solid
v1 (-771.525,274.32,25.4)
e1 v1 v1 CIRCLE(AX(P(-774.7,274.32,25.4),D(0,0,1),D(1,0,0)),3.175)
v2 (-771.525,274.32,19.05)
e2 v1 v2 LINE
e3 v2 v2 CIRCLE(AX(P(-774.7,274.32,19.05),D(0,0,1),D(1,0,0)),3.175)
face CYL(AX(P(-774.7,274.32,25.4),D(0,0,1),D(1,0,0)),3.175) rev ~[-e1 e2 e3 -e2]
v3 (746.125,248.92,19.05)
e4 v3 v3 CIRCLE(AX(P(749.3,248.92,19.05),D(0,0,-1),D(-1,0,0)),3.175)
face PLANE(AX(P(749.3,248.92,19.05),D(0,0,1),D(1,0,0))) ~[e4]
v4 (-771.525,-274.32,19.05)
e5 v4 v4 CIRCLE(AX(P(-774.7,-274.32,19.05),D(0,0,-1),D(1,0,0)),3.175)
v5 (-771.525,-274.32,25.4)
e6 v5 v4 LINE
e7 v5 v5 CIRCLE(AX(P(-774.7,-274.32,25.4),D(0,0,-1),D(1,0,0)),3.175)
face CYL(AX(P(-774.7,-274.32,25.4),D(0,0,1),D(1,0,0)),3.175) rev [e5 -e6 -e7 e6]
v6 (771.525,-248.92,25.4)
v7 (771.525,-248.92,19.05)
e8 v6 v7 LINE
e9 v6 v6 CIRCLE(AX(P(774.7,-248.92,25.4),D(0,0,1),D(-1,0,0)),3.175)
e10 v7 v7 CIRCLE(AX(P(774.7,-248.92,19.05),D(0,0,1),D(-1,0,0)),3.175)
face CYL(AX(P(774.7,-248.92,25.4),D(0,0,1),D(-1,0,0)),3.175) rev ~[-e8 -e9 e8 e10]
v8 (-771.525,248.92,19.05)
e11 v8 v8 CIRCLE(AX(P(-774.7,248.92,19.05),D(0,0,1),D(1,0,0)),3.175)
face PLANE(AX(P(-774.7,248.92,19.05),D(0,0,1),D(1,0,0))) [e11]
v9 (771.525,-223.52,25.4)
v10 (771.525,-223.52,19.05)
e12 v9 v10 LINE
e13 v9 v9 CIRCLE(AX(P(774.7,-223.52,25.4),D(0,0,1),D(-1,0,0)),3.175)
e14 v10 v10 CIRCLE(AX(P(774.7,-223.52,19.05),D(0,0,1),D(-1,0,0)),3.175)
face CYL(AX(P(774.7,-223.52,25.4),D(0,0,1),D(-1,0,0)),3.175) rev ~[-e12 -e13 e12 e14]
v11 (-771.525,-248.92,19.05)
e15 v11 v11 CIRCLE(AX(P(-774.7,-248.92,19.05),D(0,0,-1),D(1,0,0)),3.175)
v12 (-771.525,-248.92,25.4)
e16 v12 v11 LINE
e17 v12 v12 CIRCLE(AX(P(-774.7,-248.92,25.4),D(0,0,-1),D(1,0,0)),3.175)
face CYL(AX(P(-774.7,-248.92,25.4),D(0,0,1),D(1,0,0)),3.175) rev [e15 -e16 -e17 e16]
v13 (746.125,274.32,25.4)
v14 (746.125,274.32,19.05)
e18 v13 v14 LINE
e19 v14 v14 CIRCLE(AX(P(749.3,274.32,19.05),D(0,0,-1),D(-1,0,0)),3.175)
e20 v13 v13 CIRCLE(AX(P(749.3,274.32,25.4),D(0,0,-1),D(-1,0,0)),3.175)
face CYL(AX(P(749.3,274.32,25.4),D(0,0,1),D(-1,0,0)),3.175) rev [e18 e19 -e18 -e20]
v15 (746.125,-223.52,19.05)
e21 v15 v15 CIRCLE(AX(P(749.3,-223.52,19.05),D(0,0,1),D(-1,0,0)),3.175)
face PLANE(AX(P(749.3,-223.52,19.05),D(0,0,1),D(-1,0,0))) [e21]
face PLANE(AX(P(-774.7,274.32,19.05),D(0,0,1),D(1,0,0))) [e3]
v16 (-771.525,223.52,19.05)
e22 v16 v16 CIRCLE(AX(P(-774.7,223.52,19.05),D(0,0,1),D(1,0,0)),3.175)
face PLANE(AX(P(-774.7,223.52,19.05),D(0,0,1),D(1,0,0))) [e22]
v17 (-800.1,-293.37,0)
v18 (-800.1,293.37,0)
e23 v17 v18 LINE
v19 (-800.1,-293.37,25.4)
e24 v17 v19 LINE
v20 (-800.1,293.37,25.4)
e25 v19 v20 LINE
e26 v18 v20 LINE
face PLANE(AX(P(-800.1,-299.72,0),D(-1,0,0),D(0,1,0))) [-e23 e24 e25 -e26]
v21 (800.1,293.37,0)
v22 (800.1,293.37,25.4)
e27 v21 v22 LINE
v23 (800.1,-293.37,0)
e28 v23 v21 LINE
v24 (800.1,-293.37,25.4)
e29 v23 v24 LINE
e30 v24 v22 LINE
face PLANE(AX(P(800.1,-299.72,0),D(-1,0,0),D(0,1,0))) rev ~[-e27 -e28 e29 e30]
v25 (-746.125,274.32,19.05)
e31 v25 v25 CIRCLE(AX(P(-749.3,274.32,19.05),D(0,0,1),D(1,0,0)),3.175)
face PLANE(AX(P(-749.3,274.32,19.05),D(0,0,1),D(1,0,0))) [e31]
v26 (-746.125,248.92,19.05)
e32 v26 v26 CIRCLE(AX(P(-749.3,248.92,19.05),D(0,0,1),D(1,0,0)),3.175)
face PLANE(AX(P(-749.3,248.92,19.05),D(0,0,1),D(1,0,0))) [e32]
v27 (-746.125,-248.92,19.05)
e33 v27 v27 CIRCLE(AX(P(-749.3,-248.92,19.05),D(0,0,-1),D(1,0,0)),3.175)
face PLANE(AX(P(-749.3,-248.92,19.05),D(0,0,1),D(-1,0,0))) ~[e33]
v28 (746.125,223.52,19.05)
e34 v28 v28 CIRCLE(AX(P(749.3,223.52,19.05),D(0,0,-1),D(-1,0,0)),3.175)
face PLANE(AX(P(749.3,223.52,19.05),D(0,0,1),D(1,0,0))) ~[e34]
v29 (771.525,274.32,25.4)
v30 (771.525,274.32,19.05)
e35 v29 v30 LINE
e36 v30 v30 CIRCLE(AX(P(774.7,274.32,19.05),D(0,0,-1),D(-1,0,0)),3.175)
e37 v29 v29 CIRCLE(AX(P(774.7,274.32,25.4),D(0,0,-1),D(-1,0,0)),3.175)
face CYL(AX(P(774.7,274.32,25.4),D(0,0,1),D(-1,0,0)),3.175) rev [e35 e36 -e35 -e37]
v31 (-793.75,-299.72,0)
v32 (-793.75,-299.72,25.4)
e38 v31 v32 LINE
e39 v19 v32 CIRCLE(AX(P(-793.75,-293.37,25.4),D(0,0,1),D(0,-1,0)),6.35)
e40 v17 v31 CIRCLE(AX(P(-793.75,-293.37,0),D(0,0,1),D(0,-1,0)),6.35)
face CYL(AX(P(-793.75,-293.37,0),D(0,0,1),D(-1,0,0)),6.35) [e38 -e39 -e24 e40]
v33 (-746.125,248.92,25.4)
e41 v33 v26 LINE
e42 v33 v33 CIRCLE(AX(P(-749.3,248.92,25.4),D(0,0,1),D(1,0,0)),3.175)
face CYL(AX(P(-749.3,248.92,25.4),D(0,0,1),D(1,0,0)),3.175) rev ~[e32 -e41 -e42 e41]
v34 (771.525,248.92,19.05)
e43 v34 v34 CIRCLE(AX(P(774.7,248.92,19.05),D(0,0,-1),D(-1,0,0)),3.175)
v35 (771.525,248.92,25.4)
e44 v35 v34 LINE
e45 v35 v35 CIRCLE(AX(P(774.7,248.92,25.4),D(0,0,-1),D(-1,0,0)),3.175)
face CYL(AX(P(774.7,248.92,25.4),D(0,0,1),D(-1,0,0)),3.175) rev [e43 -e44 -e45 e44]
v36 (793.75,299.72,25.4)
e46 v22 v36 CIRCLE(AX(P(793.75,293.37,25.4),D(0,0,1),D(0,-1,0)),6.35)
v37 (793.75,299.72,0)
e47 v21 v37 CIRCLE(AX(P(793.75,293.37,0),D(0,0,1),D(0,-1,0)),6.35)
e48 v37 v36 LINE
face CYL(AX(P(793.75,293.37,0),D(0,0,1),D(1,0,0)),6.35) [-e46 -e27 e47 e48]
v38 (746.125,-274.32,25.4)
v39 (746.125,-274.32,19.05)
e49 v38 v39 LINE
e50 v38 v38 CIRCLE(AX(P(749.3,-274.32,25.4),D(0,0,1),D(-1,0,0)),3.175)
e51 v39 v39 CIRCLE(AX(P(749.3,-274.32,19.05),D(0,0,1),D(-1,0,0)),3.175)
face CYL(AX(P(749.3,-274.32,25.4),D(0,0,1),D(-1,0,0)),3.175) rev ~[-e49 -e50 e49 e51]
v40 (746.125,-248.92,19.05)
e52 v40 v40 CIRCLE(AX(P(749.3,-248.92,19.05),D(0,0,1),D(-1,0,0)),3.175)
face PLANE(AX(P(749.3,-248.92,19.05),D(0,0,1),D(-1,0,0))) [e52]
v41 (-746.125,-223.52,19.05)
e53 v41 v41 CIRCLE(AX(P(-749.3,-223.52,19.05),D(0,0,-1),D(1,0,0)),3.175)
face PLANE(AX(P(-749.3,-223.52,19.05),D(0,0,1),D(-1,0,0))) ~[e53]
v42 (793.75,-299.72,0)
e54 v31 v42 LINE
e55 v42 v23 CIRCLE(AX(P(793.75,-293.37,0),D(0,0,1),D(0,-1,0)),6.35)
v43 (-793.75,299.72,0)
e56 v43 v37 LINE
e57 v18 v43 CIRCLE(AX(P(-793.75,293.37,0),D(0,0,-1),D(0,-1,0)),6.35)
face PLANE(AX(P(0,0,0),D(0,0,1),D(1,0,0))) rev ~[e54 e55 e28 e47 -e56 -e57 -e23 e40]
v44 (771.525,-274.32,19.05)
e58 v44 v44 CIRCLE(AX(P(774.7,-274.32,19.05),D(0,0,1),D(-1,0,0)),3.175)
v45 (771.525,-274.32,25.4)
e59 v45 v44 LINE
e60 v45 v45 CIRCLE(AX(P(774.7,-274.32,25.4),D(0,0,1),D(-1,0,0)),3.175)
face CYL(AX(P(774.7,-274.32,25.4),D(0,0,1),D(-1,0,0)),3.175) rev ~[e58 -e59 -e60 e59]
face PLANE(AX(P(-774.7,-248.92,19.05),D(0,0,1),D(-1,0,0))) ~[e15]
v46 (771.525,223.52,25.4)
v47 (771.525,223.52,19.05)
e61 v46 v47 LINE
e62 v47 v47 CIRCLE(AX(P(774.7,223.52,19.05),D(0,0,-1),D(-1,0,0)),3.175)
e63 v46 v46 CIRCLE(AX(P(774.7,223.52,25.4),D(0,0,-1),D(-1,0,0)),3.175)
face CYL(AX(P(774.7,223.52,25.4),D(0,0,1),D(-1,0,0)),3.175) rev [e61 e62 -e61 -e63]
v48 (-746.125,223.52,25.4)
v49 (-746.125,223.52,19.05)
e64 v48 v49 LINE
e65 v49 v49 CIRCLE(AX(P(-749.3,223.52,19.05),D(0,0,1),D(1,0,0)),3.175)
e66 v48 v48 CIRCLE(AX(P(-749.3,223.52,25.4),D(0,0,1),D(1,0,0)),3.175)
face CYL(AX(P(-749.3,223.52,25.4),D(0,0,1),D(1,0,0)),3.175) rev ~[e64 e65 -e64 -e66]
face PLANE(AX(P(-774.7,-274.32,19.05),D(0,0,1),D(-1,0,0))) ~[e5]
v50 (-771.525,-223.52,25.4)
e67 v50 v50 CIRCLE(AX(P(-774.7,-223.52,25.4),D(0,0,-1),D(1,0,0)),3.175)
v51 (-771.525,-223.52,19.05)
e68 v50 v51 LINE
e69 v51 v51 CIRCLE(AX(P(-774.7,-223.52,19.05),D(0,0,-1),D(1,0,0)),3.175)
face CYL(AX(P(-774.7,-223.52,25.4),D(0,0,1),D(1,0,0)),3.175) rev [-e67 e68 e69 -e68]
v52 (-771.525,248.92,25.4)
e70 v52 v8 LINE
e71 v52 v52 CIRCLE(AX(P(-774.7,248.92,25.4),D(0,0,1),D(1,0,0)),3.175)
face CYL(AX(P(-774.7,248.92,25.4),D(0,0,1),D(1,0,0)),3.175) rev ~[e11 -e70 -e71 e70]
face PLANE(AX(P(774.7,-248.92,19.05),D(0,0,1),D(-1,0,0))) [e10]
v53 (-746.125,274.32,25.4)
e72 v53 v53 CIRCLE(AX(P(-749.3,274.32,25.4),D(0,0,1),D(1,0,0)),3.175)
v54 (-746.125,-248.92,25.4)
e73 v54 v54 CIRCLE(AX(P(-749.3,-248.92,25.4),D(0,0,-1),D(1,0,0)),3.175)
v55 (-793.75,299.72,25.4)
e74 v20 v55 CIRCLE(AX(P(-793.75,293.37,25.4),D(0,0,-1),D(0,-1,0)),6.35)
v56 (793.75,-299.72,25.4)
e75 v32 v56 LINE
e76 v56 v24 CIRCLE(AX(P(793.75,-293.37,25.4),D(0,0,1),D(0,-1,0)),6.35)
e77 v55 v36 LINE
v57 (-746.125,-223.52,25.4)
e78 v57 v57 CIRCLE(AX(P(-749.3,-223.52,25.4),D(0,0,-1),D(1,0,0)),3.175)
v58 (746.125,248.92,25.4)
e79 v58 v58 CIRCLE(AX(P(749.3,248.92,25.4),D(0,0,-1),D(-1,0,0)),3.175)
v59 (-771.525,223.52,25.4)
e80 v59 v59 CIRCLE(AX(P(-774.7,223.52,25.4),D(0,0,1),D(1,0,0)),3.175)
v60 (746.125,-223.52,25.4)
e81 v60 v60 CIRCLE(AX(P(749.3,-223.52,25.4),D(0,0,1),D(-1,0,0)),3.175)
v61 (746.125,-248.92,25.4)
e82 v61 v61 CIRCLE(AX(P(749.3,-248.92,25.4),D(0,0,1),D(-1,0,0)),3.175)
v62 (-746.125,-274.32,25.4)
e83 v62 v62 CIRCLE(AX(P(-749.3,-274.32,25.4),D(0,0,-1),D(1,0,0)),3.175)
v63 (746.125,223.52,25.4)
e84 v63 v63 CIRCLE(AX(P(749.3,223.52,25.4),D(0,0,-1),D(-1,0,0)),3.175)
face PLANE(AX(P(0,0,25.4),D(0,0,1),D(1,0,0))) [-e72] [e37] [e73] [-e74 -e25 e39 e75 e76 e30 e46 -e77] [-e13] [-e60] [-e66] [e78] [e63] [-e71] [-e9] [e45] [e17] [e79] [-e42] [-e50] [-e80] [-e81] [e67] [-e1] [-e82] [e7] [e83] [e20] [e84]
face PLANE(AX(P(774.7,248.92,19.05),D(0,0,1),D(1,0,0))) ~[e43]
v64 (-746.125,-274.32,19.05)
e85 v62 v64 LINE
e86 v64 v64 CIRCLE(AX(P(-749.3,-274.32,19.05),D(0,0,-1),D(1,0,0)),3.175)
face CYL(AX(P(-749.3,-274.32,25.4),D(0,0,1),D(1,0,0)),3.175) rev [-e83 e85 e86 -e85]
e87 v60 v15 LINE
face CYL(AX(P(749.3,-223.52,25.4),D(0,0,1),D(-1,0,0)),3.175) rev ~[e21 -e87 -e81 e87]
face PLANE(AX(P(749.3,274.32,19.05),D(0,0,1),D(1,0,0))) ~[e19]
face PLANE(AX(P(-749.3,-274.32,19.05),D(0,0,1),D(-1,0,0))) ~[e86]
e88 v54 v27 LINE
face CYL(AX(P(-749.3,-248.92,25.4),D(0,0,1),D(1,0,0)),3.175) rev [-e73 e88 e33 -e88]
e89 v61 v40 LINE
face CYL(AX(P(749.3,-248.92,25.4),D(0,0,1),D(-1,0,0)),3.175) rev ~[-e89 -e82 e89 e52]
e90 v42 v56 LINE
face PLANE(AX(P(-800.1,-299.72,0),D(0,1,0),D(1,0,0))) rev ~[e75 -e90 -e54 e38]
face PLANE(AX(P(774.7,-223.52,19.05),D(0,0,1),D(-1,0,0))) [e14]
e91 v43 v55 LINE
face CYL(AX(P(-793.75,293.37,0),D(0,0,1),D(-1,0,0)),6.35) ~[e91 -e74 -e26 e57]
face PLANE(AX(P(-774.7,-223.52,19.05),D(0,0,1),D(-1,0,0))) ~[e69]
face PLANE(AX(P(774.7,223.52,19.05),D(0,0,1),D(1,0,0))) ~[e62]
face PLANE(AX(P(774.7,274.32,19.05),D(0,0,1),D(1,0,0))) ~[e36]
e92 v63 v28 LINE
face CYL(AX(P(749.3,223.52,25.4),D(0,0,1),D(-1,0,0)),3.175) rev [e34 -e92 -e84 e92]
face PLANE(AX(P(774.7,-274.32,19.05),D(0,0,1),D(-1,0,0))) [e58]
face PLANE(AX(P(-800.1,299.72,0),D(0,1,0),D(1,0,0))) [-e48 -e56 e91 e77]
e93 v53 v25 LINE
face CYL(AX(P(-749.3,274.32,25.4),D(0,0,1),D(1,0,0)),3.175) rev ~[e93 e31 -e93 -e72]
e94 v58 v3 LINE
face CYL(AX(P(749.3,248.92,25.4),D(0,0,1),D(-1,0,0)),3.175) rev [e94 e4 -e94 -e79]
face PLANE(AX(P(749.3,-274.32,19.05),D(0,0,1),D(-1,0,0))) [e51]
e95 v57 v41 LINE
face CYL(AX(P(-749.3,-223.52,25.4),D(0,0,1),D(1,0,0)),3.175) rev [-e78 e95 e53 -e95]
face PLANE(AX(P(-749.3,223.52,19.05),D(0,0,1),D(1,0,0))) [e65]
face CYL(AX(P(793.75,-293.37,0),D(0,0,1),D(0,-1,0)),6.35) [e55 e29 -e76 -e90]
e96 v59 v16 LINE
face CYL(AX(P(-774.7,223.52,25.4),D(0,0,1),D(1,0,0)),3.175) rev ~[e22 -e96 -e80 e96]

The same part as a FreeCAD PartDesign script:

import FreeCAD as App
import Part
import Sketcher

V = App.Vector
Q = App.Units.Quantity


def edges_at(feature, points):
    """Names of the edges that pass closest to the given points."""
    edges = feature.Shape.Edges
    near = lambda p: min(range(len(edges)), key=lambda i: edges[i].distToShape(Part.Vertex(*p))[0])
    return sorted({f"Edge{near(p) + 1}" for p in points})


def add_polygon(sketch, points):
    """Adds a closed chain of lines whose ends are joined by coincident constraints."""
    first, n = sketch.GeometryCount, len(points)
    for a, b in zip(points, points[1:] + points[:1]):
        sketch.addGeometry(Part.LineSegment(App.Vector(*a, 0), App.Vector(*b, 0)), False)
    for i in range(n):
        sketch.addConstraint(Sketcher.Constraint("Coincident", first + i, 2, first + (i + 1) % n, 1))

doc = App.newDocument("Part")
body = doc.addObject("PartDesign::Body", "Body")

sketch1 = body.newObject("Sketcher::SketchObject", "Sketch")
sketch1.AttachmentSupport = (doc.getObject("XY_Plane"), [""])
sketch1.MapMode = "FlatFace"
add_polygon(sketch1, [(-800.1, 299.72), (-800.1, -299.72), (800.1, -299.72), (800.1, 299.72)])
sketch1.addConstraint([
    Sketcher.Constraint("Vertical", 0),
    Sketcher.Constraint("Horizontal", 1),
    Sketcher.Constraint("Vertical", 2),
    Sketcher.Constraint("Horizontal", 3),
    Sketcher.Constraint("Symmetric", 0, 2, 2, 2, -1, 1),
    Sketcher.Constraint("DistanceX", 1, 1, 1, 2, Q("63 in")),
    Sketcher.Constraint("DistanceY", 0, 2, 0, 1, Q("23.6 in")),
])
pad1 = body.newObject("PartDesign::Pad", "Pad")
pad1.Profile = sketch1
pad1.Length = Q("1 in")
doc.recompute()

fillet = body.newObject("PartDesign::Fillet", "Fillet")
fillet.Base = (pad1, edges_at(pad1, [
    (800.1, 299.72, 12.7),
    (800.1, -299.72, 12.7),
    (-800.1, -299.72, 12.7),
    (-800.1, 299.72, 12.7),
]))
fillet.Radius = Q("0.25 in")

sketch2 = body.newObject("Sketcher::SketchObject", "Sketch001")
sketch2.AttachmentSupport = (doc.getObject("XY_Plane"), [""])
sketch2.MapMode = "FlatFace"
sketch2.AttachmentOffset = App.Placement(V(0, 0, 1 * 25.4), App.Rotation())
sketch2.addGeometry([
    Part.Circle(V(-774.7, 274.32, 0), V(0, 0, 1), 3.175),
    Part.Circle(V(-749.3, 274.32, 0), V(0, 0, 1), 3.175),
    Part.Circle(V(-749.3, 248.92, 0), V(0, 0, 1), 3.175),
    Part.Circle(V(-774.7, 248.92, 0), V(0, 0, 1), 3.175),
    Part.Circle(V(-749.3, 223.52, 0), V(0, 0, 1), 3.175),
    Part.Circle(V(-774.7, 223.52, 0), V(0, 0, 1), 3.175),
], False)
sketch2.addConstraint([
    Sketcher.Constraint("Equal", 0, 1),
    Sketcher.Constraint("Equal", 1, 2),
    Sketcher.Constraint("Equal", 2, 3),
    Sketcher.Constraint("Equal", 3, 4),
    Sketcher.Constraint("Equal", 4, 5),
    Sketcher.Constraint("Horizontal", 0, 3, 1, 3),
    Sketcher.Constraint("Horizontal", 2, 3, 3, 3),
    Sketcher.Constraint("Horizontal", 4, 3, 5, 3),
    Sketcher.Constraint("Vertical", 1, 3, 2, 3),
    Sketcher.Constraint("Vertical", 0, 3, 3, 3),
    Sketcher.Constraint("Vertical", 2, 3, 4, 3),
    Sketcher.Constraint("Vertical", 3, 3, 5, 3),
    Sketcher.Constraint("Diameter", 0, Q("0.25 in")),
    Sketcher.Constraint("DistanceX", 0, 3, 1, 3, Q("1 in")),
    Sketcher.Constraint("DistanceY", 2, 3, 1, 3, Q("1 in")),
    Sketcher.Constraint("DistanceY", 4, 3, 2, 3, Q("1 in")),
    Sketcher.Constraint("DistanceX", 0, 3, -1, 1, Q("30.5 in")),
    Sketcher.Constraint("DistanceY", -1, 1, 0, 3, Q("10.8 in")),
])
pocket1 = body.newObject("PartDesign::Pocket", "Pocket")
pocket1.Profile = sketch2
pocket1.Length = Q("0.25 in")
doc.recompute()

mirrored = body.newObject("PartDesign::Mirrored", "Mirrored")
mirrored.Originals = [pocket1]
mirrored.MirrorPlane = (doc.getObject("XZ_Plane"), [""])
body.Tip = mirrored
doc.recompute()

mirrored2 = body.newObject("PartDesign::Mirrored", "Mirrored001")
mirrored2.Originals = [pocket1]
mirrored2.MirrorPlane = (doc.getObject("YZ_Plane"), [""])
body.Tip = mirrored2

sketch3 = body.newObject("Sketcher::SketchObject", "Sketch002")
sketch3.AttachmentSupport = (doc.getObject("XY_Plane"), [""])
sketch3.MapMode = "FlatFace"
sketch3.AttachmentOffset = App.Placement(V(0, 0, 1 * 25.4), App.Rotation())
sketch3.addGeometry([
    Part.Circle(V(774.7, -274.32, 0), V(0, 0, 1), 3.175),
    Part.Circle(V(749.3, -274.32, 0), V(0, 0, 1), 3.175),
    Part.Circle(V(749.3, -248.92, 0), V(0, 0, 1), 3.175),
    Part.Circle(V(774.7, -248.92, 0), V(0, 0, 1), 3.175),
    Part.Circle(V(749.3, -223.52, 0), V(0, 0, 1), 3.175),
    Part.Circle(V(774.7, -223.52, 0), V(0, 0, 1), 3.175),
], False)
sketch3.addConstraint([
    Sketcher.Constraint("Equal", 0, 1),
    Sketcher.Constraint("Equal", 1, 2),
    Sketcher.Constraint("Equal", 2, 3),
    Sketcher.Constraint("Equal", 3, 4),
    Sketcher.Constraint("Equal", 4, 5),
    Sketcher.Constraint("Horizontal", 0, 3, 1, 3),
    Sketcher.Constraint("Horizontal", 2, 3, 3, 3),
    Sketcher.Constraint("Horizontal", 4, 3, 5, 3),
    Sketcher.Constraint("Vertical", 1, 3, 2, 3),
    Sketcher.Constraint("Vertical", 0, 3, 3, 3),
    Sketcher.Constraint("Vertical", 2, 3, 4, 3),
    Sketcher.Constraint("Vertical", 3, 3, 5, 3),
    Sketcher.Constraint("Diameter", 0, Q("0.25 in")),
    Sketcher.Constraint("DistanceX", 1, 3, 0, 3, Q("1 in")),
    Sketcher.Constraint("DistanceY", 1, 3, 2, 3, Q("1 in")),
    Sketcher.Constraint("DistanceY", 2, 3, 4, 3, Q("1 in")),
    Sketcher.Constraint("DistanceX", -1, 1, 0, 3, Q("30.5 in")),
    Sketcher.Constraint("DistanceY", 0, 3, -1, 1, Q("10.8 in")),
])
pocket2 = body.newObject("PartDesign::Pocket", "Pocket001")
pocket2.Profile = sketch3
pocket2.Length = Q("0.25 in")

doc.recompute()
